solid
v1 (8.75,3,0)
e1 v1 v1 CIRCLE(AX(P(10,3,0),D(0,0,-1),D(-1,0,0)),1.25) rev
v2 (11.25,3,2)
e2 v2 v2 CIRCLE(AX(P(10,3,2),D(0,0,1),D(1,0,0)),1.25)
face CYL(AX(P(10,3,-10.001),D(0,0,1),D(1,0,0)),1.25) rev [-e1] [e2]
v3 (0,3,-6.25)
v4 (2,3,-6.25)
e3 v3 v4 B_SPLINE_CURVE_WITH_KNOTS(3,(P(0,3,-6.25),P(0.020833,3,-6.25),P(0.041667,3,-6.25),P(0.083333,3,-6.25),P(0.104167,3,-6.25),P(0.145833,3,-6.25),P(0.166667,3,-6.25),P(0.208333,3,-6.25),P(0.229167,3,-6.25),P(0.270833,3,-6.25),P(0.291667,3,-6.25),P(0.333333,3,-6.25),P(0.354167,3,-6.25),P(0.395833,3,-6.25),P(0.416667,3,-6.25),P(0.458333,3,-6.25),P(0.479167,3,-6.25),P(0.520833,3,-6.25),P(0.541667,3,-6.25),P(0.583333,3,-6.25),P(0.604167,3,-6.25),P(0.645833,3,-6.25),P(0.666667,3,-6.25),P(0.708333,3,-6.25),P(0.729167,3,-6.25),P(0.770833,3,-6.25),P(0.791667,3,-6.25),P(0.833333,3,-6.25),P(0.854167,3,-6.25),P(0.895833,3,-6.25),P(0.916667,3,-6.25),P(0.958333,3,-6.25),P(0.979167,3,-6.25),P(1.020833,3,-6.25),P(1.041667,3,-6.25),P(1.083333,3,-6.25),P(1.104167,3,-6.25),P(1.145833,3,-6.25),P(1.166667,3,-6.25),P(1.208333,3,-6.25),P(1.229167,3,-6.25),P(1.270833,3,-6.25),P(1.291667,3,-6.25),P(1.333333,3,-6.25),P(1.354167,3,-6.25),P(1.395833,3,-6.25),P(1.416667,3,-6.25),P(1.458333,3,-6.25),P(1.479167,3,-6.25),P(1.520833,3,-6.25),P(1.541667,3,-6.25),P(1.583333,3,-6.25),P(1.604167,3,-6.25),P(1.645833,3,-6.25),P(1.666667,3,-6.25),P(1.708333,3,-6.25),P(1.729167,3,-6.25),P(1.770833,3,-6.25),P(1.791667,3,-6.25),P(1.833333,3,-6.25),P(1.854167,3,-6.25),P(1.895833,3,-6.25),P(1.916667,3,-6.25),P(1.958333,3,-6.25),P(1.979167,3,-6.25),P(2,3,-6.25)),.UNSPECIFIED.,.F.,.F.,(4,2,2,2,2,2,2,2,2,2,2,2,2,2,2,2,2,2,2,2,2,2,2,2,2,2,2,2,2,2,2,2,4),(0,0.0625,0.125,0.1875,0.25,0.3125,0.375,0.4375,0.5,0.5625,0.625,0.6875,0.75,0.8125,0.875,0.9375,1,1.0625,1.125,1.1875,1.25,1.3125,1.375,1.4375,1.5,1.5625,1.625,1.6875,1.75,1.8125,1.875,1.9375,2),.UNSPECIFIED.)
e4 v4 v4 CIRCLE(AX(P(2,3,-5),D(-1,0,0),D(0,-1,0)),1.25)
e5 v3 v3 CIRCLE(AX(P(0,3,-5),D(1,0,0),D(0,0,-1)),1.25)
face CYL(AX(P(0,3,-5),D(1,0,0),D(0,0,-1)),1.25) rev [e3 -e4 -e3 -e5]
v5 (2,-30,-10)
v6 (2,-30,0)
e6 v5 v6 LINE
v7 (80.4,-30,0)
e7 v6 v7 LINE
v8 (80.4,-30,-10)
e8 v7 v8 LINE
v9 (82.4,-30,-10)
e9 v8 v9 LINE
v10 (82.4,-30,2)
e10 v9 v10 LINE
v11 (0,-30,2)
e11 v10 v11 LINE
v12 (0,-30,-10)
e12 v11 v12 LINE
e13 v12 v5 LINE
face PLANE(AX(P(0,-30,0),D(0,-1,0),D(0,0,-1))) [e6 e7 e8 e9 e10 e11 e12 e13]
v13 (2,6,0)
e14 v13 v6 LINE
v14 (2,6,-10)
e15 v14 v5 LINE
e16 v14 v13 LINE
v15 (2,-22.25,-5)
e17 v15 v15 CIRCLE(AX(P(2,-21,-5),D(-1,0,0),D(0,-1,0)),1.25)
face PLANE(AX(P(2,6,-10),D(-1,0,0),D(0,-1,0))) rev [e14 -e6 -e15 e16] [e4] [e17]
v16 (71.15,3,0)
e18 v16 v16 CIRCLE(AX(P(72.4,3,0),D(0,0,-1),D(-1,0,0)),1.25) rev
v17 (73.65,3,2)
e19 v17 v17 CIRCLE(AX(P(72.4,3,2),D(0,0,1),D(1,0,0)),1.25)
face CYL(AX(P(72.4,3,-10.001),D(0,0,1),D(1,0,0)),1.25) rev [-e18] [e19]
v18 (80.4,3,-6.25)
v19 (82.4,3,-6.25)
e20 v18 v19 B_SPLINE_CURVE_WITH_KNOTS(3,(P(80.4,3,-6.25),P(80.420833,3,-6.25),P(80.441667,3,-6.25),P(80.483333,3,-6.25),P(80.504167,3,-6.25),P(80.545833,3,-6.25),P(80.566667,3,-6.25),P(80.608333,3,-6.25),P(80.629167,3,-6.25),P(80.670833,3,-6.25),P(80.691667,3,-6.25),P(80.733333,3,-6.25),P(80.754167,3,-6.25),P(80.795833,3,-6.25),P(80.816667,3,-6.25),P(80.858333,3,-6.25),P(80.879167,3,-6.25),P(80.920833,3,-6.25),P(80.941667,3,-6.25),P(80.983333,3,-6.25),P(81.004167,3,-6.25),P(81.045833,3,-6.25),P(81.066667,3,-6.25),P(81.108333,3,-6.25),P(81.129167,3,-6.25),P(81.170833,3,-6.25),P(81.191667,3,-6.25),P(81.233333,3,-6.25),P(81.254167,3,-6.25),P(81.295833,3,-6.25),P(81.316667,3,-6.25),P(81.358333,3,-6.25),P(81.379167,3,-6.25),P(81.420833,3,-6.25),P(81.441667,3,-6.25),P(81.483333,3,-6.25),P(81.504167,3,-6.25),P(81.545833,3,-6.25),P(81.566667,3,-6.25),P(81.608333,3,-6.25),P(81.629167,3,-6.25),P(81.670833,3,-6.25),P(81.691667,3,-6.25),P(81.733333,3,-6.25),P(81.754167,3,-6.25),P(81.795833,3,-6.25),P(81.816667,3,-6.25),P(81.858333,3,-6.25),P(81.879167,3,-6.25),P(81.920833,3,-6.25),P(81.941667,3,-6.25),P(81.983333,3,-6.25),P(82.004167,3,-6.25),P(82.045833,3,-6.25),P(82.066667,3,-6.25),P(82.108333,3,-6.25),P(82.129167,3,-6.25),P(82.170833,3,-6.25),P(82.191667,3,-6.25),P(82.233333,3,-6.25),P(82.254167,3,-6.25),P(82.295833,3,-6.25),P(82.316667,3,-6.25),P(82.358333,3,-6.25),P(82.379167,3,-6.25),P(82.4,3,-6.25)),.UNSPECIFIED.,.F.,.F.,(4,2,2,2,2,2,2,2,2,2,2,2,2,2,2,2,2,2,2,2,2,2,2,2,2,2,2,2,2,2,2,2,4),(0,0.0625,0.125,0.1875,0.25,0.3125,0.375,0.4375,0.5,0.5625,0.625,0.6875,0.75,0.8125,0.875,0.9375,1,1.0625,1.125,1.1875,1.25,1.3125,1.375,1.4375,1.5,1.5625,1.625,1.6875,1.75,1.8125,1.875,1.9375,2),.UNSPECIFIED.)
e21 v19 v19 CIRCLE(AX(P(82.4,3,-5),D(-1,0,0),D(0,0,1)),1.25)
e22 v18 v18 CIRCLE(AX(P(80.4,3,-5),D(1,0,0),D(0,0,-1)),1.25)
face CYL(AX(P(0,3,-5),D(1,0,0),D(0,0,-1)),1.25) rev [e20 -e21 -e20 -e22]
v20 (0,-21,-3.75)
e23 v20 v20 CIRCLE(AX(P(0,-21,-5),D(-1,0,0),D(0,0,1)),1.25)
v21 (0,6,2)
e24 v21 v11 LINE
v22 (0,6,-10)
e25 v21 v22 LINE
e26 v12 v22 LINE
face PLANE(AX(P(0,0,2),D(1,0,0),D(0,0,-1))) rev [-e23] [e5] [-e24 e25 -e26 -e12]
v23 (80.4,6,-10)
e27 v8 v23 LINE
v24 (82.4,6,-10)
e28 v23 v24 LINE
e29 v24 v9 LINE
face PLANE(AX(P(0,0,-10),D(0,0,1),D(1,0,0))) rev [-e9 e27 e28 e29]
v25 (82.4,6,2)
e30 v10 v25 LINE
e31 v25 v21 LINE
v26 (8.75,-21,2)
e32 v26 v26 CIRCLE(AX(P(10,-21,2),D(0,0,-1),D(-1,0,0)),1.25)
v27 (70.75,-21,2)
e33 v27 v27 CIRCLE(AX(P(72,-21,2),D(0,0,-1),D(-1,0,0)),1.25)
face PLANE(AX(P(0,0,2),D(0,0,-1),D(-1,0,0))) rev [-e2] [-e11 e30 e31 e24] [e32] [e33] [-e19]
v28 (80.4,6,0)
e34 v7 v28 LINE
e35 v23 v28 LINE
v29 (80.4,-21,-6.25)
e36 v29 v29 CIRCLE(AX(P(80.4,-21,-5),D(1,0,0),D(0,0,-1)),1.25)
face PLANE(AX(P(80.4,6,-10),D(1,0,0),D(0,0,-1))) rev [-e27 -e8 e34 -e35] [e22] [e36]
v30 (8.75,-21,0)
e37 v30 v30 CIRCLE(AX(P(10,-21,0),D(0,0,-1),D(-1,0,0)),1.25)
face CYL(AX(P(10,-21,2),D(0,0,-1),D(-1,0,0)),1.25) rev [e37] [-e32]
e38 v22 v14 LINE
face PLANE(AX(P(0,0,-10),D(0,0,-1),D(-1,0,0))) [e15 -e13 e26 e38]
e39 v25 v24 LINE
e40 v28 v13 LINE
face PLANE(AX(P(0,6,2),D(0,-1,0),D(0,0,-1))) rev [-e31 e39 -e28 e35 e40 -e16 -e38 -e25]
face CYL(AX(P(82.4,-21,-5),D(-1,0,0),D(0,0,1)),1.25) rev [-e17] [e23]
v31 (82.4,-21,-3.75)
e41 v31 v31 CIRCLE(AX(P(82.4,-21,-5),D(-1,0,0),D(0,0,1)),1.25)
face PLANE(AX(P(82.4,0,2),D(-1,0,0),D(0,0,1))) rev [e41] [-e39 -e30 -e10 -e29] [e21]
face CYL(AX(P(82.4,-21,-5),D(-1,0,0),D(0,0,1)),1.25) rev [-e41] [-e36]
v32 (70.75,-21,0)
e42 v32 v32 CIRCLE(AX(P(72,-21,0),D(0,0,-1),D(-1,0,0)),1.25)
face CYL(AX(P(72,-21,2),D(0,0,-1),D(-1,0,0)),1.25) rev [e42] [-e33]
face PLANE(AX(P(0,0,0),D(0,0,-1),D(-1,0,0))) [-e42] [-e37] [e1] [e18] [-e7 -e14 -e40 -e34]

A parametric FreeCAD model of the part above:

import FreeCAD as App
import Part
import Sketcher

V = App.Vector
Q = App.Units.Quantity

doc = App.newDocument("Part")
body = doc.addObject("PartDesign::Body", "Body")

# Sketch on XY plane
sketch1 = body.newObject("Sketcher::SketchObject", "Sketch")
sketch1.AttachmentSupport = (doc.getObject("XY_Plane"), [""])
sketch1.MapMode = "FlatFace"
sketch1.addGeometry([
    Part.LineSegment(V(0, 6, 0), V(0, 0, 0)),
    Part.LineSegment(V(0, 0, 0), V(82, 0, 0)),
    Part.LineSegment(V(82, 0, 0), V(82, 6, 0)),
    Part.LineSegment(V(82, 6, 0), V(0, 6, 0)),
], False)
sketch1.addConstraint([
    Sketcher.Constraint("Coincident", 0, 2, 1, 1),
    Sketcher.Constraint("Coincident", 1, 2, 2, 1),
    Sketcher.Constraint("Coincident", 2, 2, 3, 1),
    Sketcher.Constraint("Coincident", 3, 2, 0, 1),
    Sketcher.Constraint("Vertical", 0),
    Sketcher.Constraint("Horizontal", 1),
    Sketcher.Constraint("Vertical", 2),
    Sketcher.Constraint("Horizontal", 3),
    Sketcher.Constraint("Coincident", 0, 2, -1, 1),
    Sketcher.Constraint("DistanceY", 0, 2, 0, 1, Q("6 mm")),
    Sketcher.Constraint("DistanceX", 1, 1, 1, 2, Q("82.4 mm")),
])
pad1 = body.newObject("PartDesign::Pad", "Pad")
pad1.Profile = sketch1
pad1.Length = 2

# Sketch on XY plane
sketch2 = body.newObject("Sketcher::SketchObject", "Sketch001")
sketch2.AttachmentSupport = (doc.getObject("XY_Plane"), [""])
sketch2.MapMode = "FlatFace"
sketch2.addGeometry([
    Part.LineSegment(V(2, 6, 0), V(2, 0, 0)),  # 0
    Part.LineSegment(V(2, 0, 0), V(0, 0, 0)),  # 1
    Part.LineSegment(V(0, 0, 0), V(0, 6, 0)),  # 2
    Part.LineSegment(V(0, 6, 0), V(2, 6, 0)),  # 3
    Part.LineSegment(V(82.4, 6, 0), V(82.4, 0, 0)),  # 4
    Part.LineSegment(V(82.4, 0, 0), V(80.4, 0, 0)),  # 5
    Part.LineSegment(V(80.4, 0, 0), V(80.4, 6, 0)),  # 6
    Part.LineSegment(V(80.4, 6, 0), V(82.4, 6, 0)),  # 7
], False)
sketch2.addConstraint([
    Sketcher.Constraint("Coincident", 0, 2, 1, 1),
    Sketcher.Constraint("Coincident", 1, 2, 2, 1),
    Sketcher.Constraint("Coincident", 2, 2, 3, 1),
    Sketcher.Constraint("Coincident", 3, 2, 0, 1),
    Sketcher.Constraint("Coincident", 4, 2, 5, 1),
    Sketcher.Constraint("Coincident", 5, 2, 6, 1),
    Sketcher.Constraint("Coincident", 6, 2, 7, 1),
    Sketcher.Constraint("Coincident", 7, 2, 4, 1),
    Sketcher.Constraint("Vertical", 0),
    Sketcher.Constraint("Horizontal", 1),
    Sketcher.Constraint("Vertical", 2),
    Sketcher.Constraint("Horizontal", 3),
    Sketcher.Constraint("Vertical", 4),
    Sketcher.Constraint("Horizontal", 5),
    Sketcher.Constraint("Vertical", 6),
    Sketcher.Constraint("Horizontal", 7),
    Sketcher.Constraint("Coincident", 1, 2, -1, 1),
    Sketcher.Constraint("PointOnObject", 4, 2, -1),
    Sketcher.Constraint("Horizontal", 3, 2, 6, 2),
    Sketcher.Constraint("Equal", 3, 5),
    Sketcher.Constraint("DistanceX", 1, 2, 1, 1, Q("2 mm")),
    Sketcher.Constraint("DistanceY", 0, 2, 0, 1, Q("6 mm")),
    Sketcher.Constraint("DistanceX", -1, 1, 4, 2, Q("82.4 mm")),
])
pad2 = body.newObject("PartDesign::Pad", "Pad001")
pad2.Profile = sketch2
pad2.Length = 10
pad2.Reversed = True

# Sketch on XY plane
sketch3 = body.newObject("Sketcher::SketchObject", "Sketch002")
sketch3.AttachmentSupport = (doc.getObject("XY_Plane"), [""])
sketch3.MapMode = "FlatFace"
sketch3.AttachmentOffset = App.Placement(V(0, 0, 2), App.Rotation())
sketch3.addGeometry(Part.Circle(V(10, 3, 0), V(0, 0, 1), 1.2), False)
sketch3.addConstraint([
    Sketcher.Constraint("Diameter", 0, Q("2.5 mm")),
    Sketcher.Constraint("DistanceX", -1, 1, 0, 3, Q("10 mm")),
    Sketcher.Constraint("DistanceY", -1, 1, 0, 3, Q("3 mm")),
])
pocket1 = body.newObject("PartDesign::Pocket", "Pocket")
pocket1.Profile = sketch3
pocket1.Type = "UpToFirst"

# Sketch on XY plane
sketch4 = body.newObject("Sketcher::SketchObject", "Sketch003")
sketch4.AttachmentSupport = (doc.getObject("XY_Plane"), [""])
sketch4.MapMode = "FlatFace"
sketch4.AttachmentOffset = App.Placement(V(0, 0, 2), App.Rotation())
sketch4.addGeometry(Part.Circle(V(72.4, 3, 0), V(0, 0, 1), 1.2), False)
sketch4.addConstraint([
    Sketcher.Constraint("Diameter", 0, Q("2.5 mm")),
    Sketcher.Constraint("DistanceY", -1, 1, 0, 3, Q("3 mm")),
    Sketcher.Constraint("DistanceX", -1, 1, 0, 3, Q("72.4 mm")),
])
pocket2 = body.newObject("PartDesign::Pocket", "Pocket001")
pocket2.Profile = sketch4
pocket2.Type = "UpToFirst"

# Sketch on YZ plane
sketch5 = body.newObject("Sketcher::SketchObject", "Sketch004")
sketch5.AttachmentSupport = (doc.getObject("YZ_Plane"), [""])
sketch5.MapMode = "FlatFace"
sketch5.AttachmentOffset = App.Placement(V(0, 0, 82.4), App.Rotation())
sketch5.addGeometry(Part.Circle(V(3, -5, 0), V(0, 0, 1), 1.2), False)
sketch5.addConstraint([
    Sketcher.Constraint("Diameter", 0, Q("2.5 mm")),
    Sketcher.Constraint("DistanceX", -1, 1, 0, 3, Q("3 mm")),
    Sketcher.Constraint("DistanceY", 0, 3, -1, 1, Q("5 mm")),
])
pocket3 = body.newObject("PartDesign::Pocket", "Pocket002")
pocket3.Profile = sketch5
pocket3.Type = "ThroughAll"
pocket3.Midplane = True

# Sketch on XZ plane
sketch6 = body.newObject("Sketcher::SketchObject", "Sketch005")
sketch6.AttachmentSupport = (doc.getObject("XZ_Plane"), [""])
sketch6.MapMode = "FlatFace"
sketch6.addGeometry([
    Part.LineSegment(V(0, 2, 0), V(0, -10, 0)),  # 0
    Part.LineSegment(V(0, -10, 0), V(2, -10, 0)),  # 1
    Part.LineSegment(V(2, -10, 0), V(2, 0, 0)),  # 2
    Part.LineSegment(V(2, 0, 0), V(80.4, 0, 0)),  # 3
    Part.LineSegment(V(80.4, 0, 0), V(80.4, -10, 0)),  # 4
    Part.LineSegment(V(80.4, -10, 0), V(82.4, -10, 0)),  # 5
    Part.LineSegment(V(82.4, -10, 0), V(82.4, 2, 0)),  # 6
    Part.LineSegment(V(82.4, 2, 0), V(0, 2, 0)),  # 7
], False)
sketch6.addConstraint([
    Sketcher.Constraint("Coincident", 0, 2, 1, 1),
    Sketcher.Constraint("Coincident", 1, 2, 2, 1),
    Sketcher.Constraint("Coincident", 2, 2, 3, 1),
    Sketcher.Constraint("Coincident", 3, 2, 4, 1),
    Sketcher.Constraint("Coincident", 4, 2, 5, 1),
    Sketcher.Constraint("Coincident", 5, 2, 6, 1),
    Sketcher.Constraint("Coincident", 6, 2, 7, 1),
    Sketcher.Constraint("Coincident", 7, 2, 0, 1),
    Sketcher.Constraint("Vertical", 0),
    Sketcher.Constraint("Horizontal", 1),
    Sketcher.Constraint("Vertical", 2),
    Sketcher.Constraint("Horizontal", 3),
    Sketcher.Constraint("Vertical", 4),
    Sketcher.Constraint("Horizontal", 5),
    Sketcher.Constraint("Vertical", 6),
    Sketcher.Constraint("Horizontal", 7),
    Sketcher.Constraint("PointOnObject", 0, 2, -2),
    Sketcher.Constraint("PointOnObject", 2, 2, -1),
    Sketcher.Constraint("Horizontal", 1, 2, 4, 2),
    Sketcher.Constraint("Equal", 1, 5),
    Sketcher.Constraint("DistanceX", 1, 1, 1, 2, Q("2 mm")),
    Sketcher.Constraint("DistanceY", 0, 2, 0, 1, Q("12 mm")),
    Sketcher.Constraint("DistanceY", 2, 1, 2, 2, Q("10 mm")),
    Sketcher.Constraint("DistanceX", 3, 1, 3, 2, Q("78.4 mm")),
])
pad3 = body.newObject("PartDesign::Pad", "Pad002")
pad3.Profile = sketch6
pad3.Length = 30

# Sketch on YZ plane
sketch7 = body.newObject("Sketcher::SketchObject", "Sketch006")
sketch7.AttachmentSupport = (doc.getObject("YZ_Plane"), [""])
sketch7.MapMode = "FlatFace"
sketch7.AttachmentOffset = App.Placement(V(0, 0, 80.4), App.Rotation())
sketch7.addGeometry(Part.Circle(V(-21, -5, 0), V(0, 0, 1), 1.2), False)
sketch7.addConstraint([
    Sketcher.Constraint("Diameter", 0, Q("2.5 mm")),
    Sketcher.Constraint("DistanceX", 0, 3, -1, 1, Q("21 mm")),
    Sketcher.Constraint("DistanceY", 0, 3, -1, 1, Q("5 mm")),
])
pocket4 = body.newObject("PartDesign::Pocket", "Pocket003")
pocket4.Profile = sketch7
pocket4.Type = "ThroughAll"
pocket4.Midplane = True

# Sketch on XY plane
sketch8 = body.newObject("Sketcher::SketchObject", "Sketch007")
sketch8.AttachmentSupport = (doc.getObject("XY_Plane"), [""])
sketch8.MapMode = "FlatFace"
sketch8.addGeometry([
    Part.Circle(V(10, -21, 0), V(0, 0, 1), 1.2),
    Part.Circle(V(72, -21, 0), V(0, 0, 1), 1.2),
], False)
sketch8.addConstraint([
    Sketcher.Constraint("Equal", 0, 1),
    Sketcher.Constraint("Horizontal", 0, 3, 1, 3),
    Sketcher.Constraint("Diameter", 0, Q("2.5 mm")),
    Sketcher.Constraint("DistanceX", -1, 1, 0, 3, Q("10 mm")),
    Sketcher.Constraint("DistanceY", 0, 3, -1, 1, Q("21 mm")),
    Sketcher.Constraint("DistanceX", -1, 1, 1, 3, Q("72 mm")),
])
pocket5 = body.newObject("PartDesign::Pocket", "Pocket004")
pocket5.Profile = sketch8
pocket5.Type = "ThroughAll"
pocket5.Reversed = True

doc.recompute()
